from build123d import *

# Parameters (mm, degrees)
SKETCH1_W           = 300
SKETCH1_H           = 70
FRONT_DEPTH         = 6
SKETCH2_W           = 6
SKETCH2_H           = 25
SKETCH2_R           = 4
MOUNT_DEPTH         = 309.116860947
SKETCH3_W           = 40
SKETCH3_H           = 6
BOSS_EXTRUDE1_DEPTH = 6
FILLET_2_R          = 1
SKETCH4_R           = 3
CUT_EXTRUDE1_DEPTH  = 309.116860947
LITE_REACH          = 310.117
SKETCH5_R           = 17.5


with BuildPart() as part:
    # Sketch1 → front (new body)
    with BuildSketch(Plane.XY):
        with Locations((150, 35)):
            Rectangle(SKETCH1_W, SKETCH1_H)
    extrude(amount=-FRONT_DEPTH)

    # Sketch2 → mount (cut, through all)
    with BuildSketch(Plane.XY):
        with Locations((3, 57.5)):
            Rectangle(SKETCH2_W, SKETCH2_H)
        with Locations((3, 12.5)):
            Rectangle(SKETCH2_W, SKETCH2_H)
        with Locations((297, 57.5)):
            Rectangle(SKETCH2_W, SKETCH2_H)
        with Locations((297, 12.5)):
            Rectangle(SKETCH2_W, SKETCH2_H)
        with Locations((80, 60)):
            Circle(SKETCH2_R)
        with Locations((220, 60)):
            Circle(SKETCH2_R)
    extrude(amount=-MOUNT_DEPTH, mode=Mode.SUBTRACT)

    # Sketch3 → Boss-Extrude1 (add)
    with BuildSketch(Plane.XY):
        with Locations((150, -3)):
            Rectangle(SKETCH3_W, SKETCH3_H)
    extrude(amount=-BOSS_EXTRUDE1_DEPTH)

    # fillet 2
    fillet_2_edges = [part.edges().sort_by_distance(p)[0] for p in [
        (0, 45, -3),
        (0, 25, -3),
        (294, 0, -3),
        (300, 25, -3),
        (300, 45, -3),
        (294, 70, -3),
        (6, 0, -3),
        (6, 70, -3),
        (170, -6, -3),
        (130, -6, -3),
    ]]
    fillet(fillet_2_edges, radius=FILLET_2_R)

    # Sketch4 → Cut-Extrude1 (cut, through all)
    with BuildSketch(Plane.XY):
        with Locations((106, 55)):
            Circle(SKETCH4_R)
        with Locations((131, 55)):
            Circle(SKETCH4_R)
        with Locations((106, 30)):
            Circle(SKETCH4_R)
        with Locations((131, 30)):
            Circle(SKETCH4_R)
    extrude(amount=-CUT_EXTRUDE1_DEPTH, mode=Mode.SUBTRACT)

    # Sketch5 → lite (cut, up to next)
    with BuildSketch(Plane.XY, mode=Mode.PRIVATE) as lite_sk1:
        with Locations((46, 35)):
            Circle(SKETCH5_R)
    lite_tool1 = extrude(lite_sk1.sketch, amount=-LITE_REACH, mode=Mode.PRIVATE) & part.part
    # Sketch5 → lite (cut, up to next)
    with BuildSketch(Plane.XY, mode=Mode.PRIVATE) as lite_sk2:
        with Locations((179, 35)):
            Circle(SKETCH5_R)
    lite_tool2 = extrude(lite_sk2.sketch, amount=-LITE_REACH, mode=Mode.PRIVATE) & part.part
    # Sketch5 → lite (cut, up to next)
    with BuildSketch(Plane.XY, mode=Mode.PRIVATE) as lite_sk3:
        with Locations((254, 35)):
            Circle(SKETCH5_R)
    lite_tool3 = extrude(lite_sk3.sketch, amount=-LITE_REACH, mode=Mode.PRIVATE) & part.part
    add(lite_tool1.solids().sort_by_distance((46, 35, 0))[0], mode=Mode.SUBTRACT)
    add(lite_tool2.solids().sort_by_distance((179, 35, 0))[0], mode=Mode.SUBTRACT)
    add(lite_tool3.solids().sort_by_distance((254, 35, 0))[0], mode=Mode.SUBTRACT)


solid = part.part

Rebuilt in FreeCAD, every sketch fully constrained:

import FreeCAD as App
import Part
import Sketcher
from FreeCAD import Vector
Q = App.Units.Quantity


def edges_at(feature, points):
    """Names of the edges that pass closest to the given points."""
    edges = feature.Shape.Edges
    near = lambda p: min(range(len(edges)), key=lambda i: edges[i].distToShape(Part.Vertex(*p))[0])
    return sorted({f"Edge{near(p) + 1}" for p in points})


def add_polygon(sketch, points):
    """Adds a closed chain of lines whose ends are joined by coincident constraints."""
    first, n = sketch.GeometryCount, len(points)
    for a, b in zip(points, points[1:] + points[:1]):
        sketch.addGeometry(Part.LineSegment(App.Vector(*a, 0), App.Vector(*b, 0)), False)
    for i in range(n):
        sketch.addConstraint(Sketcher.Constraint("Coincident", first + i, 2, first + (i + 1) % n, 1))

doc = App.newDocument("Part")
body = doc.addObject("PartDesign::Body", "Body")

# Sketch on XY plane
sketch1 = body.newObject("Sketcher::SketchObject", "Sketch")
sketch1.AttachmentSupport = (doc.getObject("XY_Plane"), [""])
sketch1.MapMode = "FlatFace"
add_polygon(sketch1, [(0, 70), (0, 0), (300, 0), (300, 70)])  # lines 0-3
sketch1.addConstraint(Sketcher.Constraint("Vertical", 0))
sketch1.addConstraint(Sketcher.Constraint("Horizontal", 1))
sketch1.addConstraint(Sketcher.Constraint("Vertical", 2))
sketch1.addConstraint(Sketcher.Constraint("Horizontal", 3))
sketch1.addConstraint(Sketcher.Constraint("Coincident", 0, 2, -1, 1))
sketch1.addConstraint(Sketcher.Constraint("DistanceX", 1, 1, 1, 2, Q("300 mm")))
sketch1.addConstraint(Sketcher.Constraint("DistanceY", 0, 2, 0, 1, Q("70 mm")))
pad1 = body.newObject("PartDesign::Pad", "Pad")
pad1.Profile = sketch1
pad1.Length = 6
pad1.Reversed = True

# Sketch on XY plane
sketch2 = body.newObject("Sketcher::SketchObject", "Sketch001")
sketch2.AttachmentSupport = (doc.getObject("XY_Plane"), [""])
sketch2.MapMode = "FlatFace"
add_polygon(sketch2, [(0, 70), (0, 45), (6, 45), (6, 70)])  # lines 0-3
add_polygon(sketch2, [(0, 25), (0, 0), (6, 0), (6, 25)])  # lines 4-7
add_polygon(sketch2, [(294, 70), (294, 45), (300, 45), (300, 70)])  # lines 8-11
add_polygon(sketch2, [(294, 25), (294, 0), (300, 0), (300, 25)])  # lines 12-15
sketch2.addGeometry(Part.Circle(Vector(80, 60, 0), Vector(0, 0, 1), 4), False)  # 16
sketch2.addGeometry(Part.Circle(Vector(220, 60, 0), Vector(0, 0, 1), 4), False)  # 17
sketch2.addConstraint(Sketcher.Constraint("Vertical", 0))
sketch2.addConstraint(Sketcher.Constraint("Horizontal", 1))
sketch2.addConstraint(Sketcher.Constraint("Vertical", 2))
sketch2.addConstraint(Sketcher.Constraint("Horizontal", 3))
sketch2.addConstraint(Sketcher.Constraint("Vertical", 4))
sketch2.addConstraint(Sketcher.Constraint("Horizontal", 5))
sketch2.addConstraint(Sketcher.Constraint("Vertical", 6))
sketch2.addConstraint(Sketcher.Constraint("Horizontal", 7))
sketch2.addConstraint(Sketcher.Constraint("Vertical", 8))
sketch2.addConstraint(Sketcher.Constraint("Horizontal", 9))
sketch2.addConstraint(Sketcher.Constraint("Vertical", 10))
sketch2.addConstraint(Sketcher.Constraint("Horizontal", 11))
sketch2.addConstraint(Sketcher.Constraint("Vertical", 12))
sketch2.addConstraint(Sketcher.Constraint("Horizontal", 13))
sketch2.addConstraint(Sketcher.Constraint("Vertical", 14))
sketch2.addConstraint(Sketcher.Constraint("Horizontal", 15))
sketch2.addConstraint(Sketcher.Constraint("Coincident", 4, 2, -1, 1))
sketch2.addConstraint(Sketcher.Constraint("Equal", 16, 17))
sketch2.addConstraint(Sketcher.Constraint("PointOnObject", 0, 2, -2))
sketch2.addConstraint(Sketcher.Constraint("PointOnObject", 12, 2, -1))
sketch2.addConstraint(Sketcher.Constraint("Horizontal", 16, 3, 17, 3))
sketch2.addConstraint(Sketcher.Constraint("Horizontal", 1, 2, 8, 2))
sketch2.addConstraint(Sketcher.Constraint("Horizontal", 3, 2, 10, 2))
sketch2.addConstraint(Sketcher.Constraint("Horizontal", 7, 2, 14, 2))
sketch2.addConstraint(Sketcher.Constraint("Vertical", 2, 2, 5, 2))
sketch2.addConstraint(Sketcher.Constraint("Vertical", 11, 2, 12, 2))
sketch2.addConstraint(Sketcher.Constraint("Vertical", 10, 2, 13, 2))
sketch2.addConstraint(Sketcher.Constraint("Equal", 7, 9))
sketch2.addConstraint(Sketcher.Constraint("Equal", 2, 4))
sketch2.addConstraint(Sketcher.Constraint("Diameter", 16, Q("8 mm")))
sketch2.addConstraint(Sketcher.Constraint("DistanceX", 1, 1, 1, 2, Q("6 mm")))
sketch2.addConstraint(Sketcher.Constraint("DistanceY", 0, 2, 0, 1, Q("25 mm")))
sketch2.addConstraint(Sketcher.Constraint("DistanceX", -1, 1, 16, 3, Q("80 mm")))
sketch2.addConstraint(Sketcher.Constraint("DistanceY", -1, 1, 16, 3, Q("60 mm")))
sketch2.addConstraint(Sketcher.Constraint("DistanceX", -1, 1, 17, 3, Q("220 mm")))
sketch2.addConstraint(Sketcher.Constraint("DistanceY", -1, 1, 0, 2, Q("45 mm")))
sketch2.addConstraint(Sketcher.Constraint("DistanceX", -1, 1, 8, 2, Q("294 mm")))
pocket1 = body.newObject("PartDesign::Pocket", "Pocket")
pocket1.Profile = sketch2
pocket1.Type = "ThroughAll"

# Sketch on XY plane
sketch3 = body.newObject("Sketcher::SketchObject", "Sketch002")
sketch3.AttachmentSupport = (doc.getObject("XY_Plane"), [""])
sketch3.MapMode = "FlatFace"
add_polygon(sketch3, [(130, 0), (130, -6), (170, -6), (170, 0)])  # lines 0-3
sketch3.addConstraint(Sketcher.Constraint("Vertical", 0))
sketch3.addConstraint(Sketcher.Constraint("Horizontal", 1))
sketch3.addConstraint(Sketcher.Constraint("Vertical", 2))
sketch3.addConstraint(Sketcher.Constraint("Horizontal", 3))
sketch3.addConstraint(Sketcher.Constraint("PointOnObject", 2, 2, -1))
sketch3.addConstraint(Sketcher.Constraint("DistanceX", 1, 1, 1, 2, Q("40 mm")))
sketch3.addConstraint(Sketcher.Constraint("DistanceY", 0, 2, 0, 1, Q("6 mm")))
sketch3.addConstraint(Sketcher.Constraint("DistanceX", -1, 1, 0, 2, Q("130 mm")))
pad2 = body.newObject("PartDesign::Pad", "Pad001")
pad2.Profile = sketch3
pad2.Length = 6
pad2.Reversed = True
doc.recompute()

fillet = body.newObject("PartDesign::Fillet", "Fillet")
fillet.Base = (pad2, edges_at(pad2, [
    (0, 45, -3),
    (0, 25, -3),
    (294, 0, -3),
    (300, 25, -3),
    (300, 45, -3),
    (294, 70, -3),
    (6, 0, -3),
    (6, 70, -3),
    (170, -6, -3),
    (130, -6, -3),
]))
fillet.Radius = 1

# Sketch on XY plane
sketch4 = body.newObject("Sketcher::SketchObject", "Sketch003")
sketch4.AttachmentSupport = (doc.getObject("XY_Plane"), [""])
sketch4.MapMode = "FlatFace"
sketch4.addGeometry(Part.Circle(Vector(106, 55, 0), Vector(0, 0, 1), 3), False)
sketch4.addGeometry(Part.Circle(Vector(131, 55, 0), Vector(0, 0, 1), 3), False)
sketch4.addGeometry(Part.Circle(Vector(106, 30, 0), Vector(0, 0, 1), 3), False)
sketch4.addGeometry(Part.Circle(Vector(131, 30, 0), Vector(0, 0, 1), 3), False)
sketch4.addConstraint(Sketcher.Constraint("Equal", 0, 1))
sketch4.addConstraint(Sketcher.Constraint("Equal", 1, 2))
sketch4.addConstraint(Sketcher.Constraint("Equal", 2, 3))
sketch4.addConstraint(Sketcher.Constraint("Horizontal", 0, 3, 1, 3))
sketch4.addConstraint(Sketcher.Constraint("Horizontal", 2, 3, 3, 3))
sketch4.addConstraint(Sketcher.Constraint("Vertical", 0, 3, 2, 3))
sketch4.addConstraint(Sketcher.Constraint("Vertical", 1, 3, 3, 3))
sketch4.addConstraint(Sketcher.Constraint("Diameter", 0, Q("6 mm")))
sketch4.addConstraint(Sketcher.Constraint("DistanceX", -1, 1, 0, 3, Q("106 mm")))
sketch4.addConstraint(Sketcher.Constraint("DistanceY", -1, 1, 0, 3, Q("55 mm")))
sketch4.addConstraint(Sketcher.Constraint("DistanceX", -1, 1, 1, 3, Q("131 mm")))
sketch4.addConstraint(Sketcher.Constraint("DistanceY", -1, 1, 2, 3, Q("30 mm")))
pocket2 = body.newObject("PartDesign::Pocket", "Pocket001")
pocket2.Profile = sketch4
pocket2.Type = "ThroughAll"

# Sketch on XY plane
sketch5 = body.newObject("Sketcher::SketchObject", "Sketch004")
sketch5.AttachmentSupport = (doc.getObject("XY_Plane"), [""])
sketch5.MapMode = "FlatFace"
sketch5.addGeometry(Part.Circle(Vector(46, 35, 0), Vector(0, 0, 1), 17.5), False)
sketch5.addConstraint(Sketcher.Constraint("Diameter", 0, Q("35 mm")))
sketch5.addConstraint(Sketcher.Constraint("DistanceX", -1, 1, 0, 3, Q("46 mm")))
sketch5.addConstraint(Sketcher.Constraint("DistanceY", -1, 1, 0, 3, Q("35 mm")))
pocket3 = body.newObject("PartDesign::Pocket", "Pocket002")
pocket3.Profile = sketch5
pocket3.Type = "UpToFirst"

# Sketch on XY plane
sketch6 = body.newObject("Sketcher::SketchObject", "Sketch005")
sketch6.AttachmentSupport = (doc.getObject("XY_Plane"), [""])
sketch6.MapMode = "FlatFace"
sketch6.addGeometry(Part.Circle(Vector(179, 35, 0), Vector(0, 0, 1), 17.5), False)
sketch6.addConstraint(Sketcher.Constraint("Diameter", 0, Q("35 mm")))
sketch6.addConstraint(Sketcher.Constraint("DistanceX", -1, 1, 0, 3, Q("179 mm")))
sketch6.addConstraint(Sketcher.Constraint("DistanceY", -1, 1, 0, 3, Q("35 mm")))
pocket4 = body.newObject("PartDesign::Pocket", "Pocket003")
pocket4.Profile = sketch6
pocket4.Type = "UpToFirst"

# Sketch on XY plane
sketch7 = body.newObject("Sketcher::SketchObject", "Sketch006")
sketch7.AttachmentSupport = (doc.getObject("XY_Plane"), [""])
sketch7.MapMode = "FlatFace"
sketch7.addGeometry(Part.Circle(Vector(254, 35, 0), Vector(0, 0, 1), 17.5), False)
sketch7.addConstraint(Sketcher.Constraint("Diameter", 0, Q("35 mm")))
sketch7.addConstraint(Sketcher.Constraint("DistanceX", -1, 1, 0, 3, Q("254 mm")))
sketch7.addConstraint(Sketcher.Constraint("DistanceY", -1, 1, 0, 3, Q("35 mm")))
pocket5 = body.newObject("PartDesign::Pocket", "Pocket004")
pocket5.Profile = sketch7
pocket5.Type = "UpToFirst"

doc.recompute()
